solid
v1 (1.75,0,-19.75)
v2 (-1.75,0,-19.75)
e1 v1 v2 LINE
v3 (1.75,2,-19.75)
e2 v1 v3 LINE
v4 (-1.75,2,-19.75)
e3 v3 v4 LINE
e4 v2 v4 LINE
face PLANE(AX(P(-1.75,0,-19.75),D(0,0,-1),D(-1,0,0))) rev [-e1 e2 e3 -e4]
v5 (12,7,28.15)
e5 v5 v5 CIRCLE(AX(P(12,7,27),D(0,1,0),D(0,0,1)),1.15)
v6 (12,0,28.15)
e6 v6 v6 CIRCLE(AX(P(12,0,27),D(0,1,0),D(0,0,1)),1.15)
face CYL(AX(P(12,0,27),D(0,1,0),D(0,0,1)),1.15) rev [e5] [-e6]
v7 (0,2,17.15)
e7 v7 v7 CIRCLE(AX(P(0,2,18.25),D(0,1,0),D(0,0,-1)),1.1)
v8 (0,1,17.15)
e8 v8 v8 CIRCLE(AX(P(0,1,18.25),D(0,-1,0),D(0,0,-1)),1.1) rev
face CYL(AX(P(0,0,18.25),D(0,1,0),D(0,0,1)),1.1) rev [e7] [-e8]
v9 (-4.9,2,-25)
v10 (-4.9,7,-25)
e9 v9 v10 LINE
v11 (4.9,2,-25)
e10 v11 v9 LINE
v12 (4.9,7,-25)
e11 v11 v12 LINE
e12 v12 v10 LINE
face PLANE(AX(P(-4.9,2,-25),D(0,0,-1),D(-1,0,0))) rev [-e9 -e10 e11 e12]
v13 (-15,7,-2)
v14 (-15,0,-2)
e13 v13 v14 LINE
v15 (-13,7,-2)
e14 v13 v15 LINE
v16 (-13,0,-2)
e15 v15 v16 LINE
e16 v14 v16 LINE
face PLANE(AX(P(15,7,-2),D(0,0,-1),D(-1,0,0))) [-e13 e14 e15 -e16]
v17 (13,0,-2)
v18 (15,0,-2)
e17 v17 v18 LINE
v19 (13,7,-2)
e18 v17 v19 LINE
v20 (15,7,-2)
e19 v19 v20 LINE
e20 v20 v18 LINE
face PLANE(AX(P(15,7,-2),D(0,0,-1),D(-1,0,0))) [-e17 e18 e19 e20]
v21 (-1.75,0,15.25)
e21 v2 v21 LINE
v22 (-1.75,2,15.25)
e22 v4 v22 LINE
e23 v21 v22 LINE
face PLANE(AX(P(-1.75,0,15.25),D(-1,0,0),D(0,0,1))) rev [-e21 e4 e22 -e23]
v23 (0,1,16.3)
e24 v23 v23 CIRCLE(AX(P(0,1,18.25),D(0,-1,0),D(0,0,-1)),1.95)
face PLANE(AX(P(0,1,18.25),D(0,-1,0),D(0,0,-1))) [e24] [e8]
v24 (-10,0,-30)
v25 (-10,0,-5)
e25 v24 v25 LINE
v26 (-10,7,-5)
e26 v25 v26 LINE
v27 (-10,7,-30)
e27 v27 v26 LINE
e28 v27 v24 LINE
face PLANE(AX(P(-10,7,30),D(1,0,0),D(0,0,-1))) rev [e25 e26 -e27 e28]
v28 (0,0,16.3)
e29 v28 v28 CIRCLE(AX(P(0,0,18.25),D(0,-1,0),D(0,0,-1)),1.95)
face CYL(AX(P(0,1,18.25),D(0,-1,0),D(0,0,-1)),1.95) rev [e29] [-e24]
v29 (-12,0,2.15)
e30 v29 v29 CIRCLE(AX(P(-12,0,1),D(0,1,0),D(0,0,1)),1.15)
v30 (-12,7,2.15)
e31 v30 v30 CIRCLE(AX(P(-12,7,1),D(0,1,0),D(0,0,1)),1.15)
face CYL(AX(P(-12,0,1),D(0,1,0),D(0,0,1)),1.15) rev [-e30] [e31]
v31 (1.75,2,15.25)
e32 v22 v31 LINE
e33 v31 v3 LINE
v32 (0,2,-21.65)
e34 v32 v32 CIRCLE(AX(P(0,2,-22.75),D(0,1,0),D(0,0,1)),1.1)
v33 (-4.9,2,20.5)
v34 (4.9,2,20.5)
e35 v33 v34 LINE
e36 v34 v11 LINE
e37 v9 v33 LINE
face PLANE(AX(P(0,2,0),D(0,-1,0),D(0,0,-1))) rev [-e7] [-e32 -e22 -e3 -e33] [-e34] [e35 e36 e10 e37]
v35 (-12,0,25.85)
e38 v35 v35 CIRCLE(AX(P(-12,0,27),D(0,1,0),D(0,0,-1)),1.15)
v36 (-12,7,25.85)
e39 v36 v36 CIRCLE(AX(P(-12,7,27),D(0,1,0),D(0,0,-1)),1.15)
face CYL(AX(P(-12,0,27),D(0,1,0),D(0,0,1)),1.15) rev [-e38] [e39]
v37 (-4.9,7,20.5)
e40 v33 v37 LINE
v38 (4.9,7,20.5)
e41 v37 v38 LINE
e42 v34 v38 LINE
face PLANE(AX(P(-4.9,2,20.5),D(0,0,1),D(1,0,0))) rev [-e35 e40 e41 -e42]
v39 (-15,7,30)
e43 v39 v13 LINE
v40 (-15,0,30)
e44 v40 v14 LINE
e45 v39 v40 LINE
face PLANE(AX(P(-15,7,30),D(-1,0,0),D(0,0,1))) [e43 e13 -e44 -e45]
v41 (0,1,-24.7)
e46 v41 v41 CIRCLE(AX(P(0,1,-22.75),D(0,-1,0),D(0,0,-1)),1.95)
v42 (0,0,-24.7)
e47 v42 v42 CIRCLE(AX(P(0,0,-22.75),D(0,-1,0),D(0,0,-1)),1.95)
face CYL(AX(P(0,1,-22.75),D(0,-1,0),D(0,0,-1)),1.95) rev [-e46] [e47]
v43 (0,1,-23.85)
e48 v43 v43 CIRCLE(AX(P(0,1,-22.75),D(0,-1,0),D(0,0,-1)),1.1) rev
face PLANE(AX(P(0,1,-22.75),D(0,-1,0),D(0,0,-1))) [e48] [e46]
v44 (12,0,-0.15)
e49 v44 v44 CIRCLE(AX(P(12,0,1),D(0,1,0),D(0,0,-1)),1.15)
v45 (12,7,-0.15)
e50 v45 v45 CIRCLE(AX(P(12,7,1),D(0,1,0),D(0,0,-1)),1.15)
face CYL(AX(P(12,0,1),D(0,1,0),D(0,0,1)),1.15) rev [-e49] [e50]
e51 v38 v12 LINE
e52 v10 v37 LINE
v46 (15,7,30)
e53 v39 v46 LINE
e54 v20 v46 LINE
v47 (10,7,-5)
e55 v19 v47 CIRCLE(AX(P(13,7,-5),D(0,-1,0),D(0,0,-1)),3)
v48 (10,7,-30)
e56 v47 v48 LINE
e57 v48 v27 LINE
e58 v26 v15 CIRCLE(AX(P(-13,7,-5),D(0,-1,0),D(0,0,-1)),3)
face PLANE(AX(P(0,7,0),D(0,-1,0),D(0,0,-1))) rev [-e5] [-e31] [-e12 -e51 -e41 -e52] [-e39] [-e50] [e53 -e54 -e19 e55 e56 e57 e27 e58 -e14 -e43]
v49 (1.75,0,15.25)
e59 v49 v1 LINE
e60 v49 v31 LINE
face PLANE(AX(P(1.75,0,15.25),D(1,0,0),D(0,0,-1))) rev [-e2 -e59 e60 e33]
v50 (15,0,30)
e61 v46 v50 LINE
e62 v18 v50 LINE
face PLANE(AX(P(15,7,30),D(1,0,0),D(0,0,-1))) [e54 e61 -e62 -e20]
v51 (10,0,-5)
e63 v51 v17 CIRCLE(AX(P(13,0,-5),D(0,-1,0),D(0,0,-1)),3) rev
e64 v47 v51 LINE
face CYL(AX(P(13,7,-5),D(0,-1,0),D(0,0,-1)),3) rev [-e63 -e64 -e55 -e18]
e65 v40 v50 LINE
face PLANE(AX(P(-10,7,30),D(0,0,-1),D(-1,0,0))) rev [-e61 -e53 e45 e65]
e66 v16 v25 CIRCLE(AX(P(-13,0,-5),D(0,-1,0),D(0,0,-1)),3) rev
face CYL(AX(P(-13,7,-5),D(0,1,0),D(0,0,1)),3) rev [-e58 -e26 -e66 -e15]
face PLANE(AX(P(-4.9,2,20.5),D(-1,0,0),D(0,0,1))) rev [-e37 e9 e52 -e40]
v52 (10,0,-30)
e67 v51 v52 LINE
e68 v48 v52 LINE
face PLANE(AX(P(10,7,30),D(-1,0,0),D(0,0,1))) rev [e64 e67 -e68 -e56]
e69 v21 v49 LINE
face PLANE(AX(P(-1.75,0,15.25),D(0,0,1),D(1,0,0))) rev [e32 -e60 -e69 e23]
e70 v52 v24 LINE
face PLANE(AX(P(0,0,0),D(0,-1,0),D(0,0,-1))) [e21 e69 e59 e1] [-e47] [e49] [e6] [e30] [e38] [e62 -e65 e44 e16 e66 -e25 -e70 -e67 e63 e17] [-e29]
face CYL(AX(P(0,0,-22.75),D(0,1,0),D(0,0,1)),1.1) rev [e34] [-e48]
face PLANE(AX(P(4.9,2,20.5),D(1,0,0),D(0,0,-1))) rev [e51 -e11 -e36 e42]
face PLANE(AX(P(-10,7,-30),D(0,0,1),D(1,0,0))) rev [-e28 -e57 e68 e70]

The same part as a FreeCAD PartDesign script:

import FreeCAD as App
import Part
import Sketcher
from FreeCAD import Vector
Q = App.Units.Quantity


def edges_at(feature, points):
    """Names of the edges that pass closest to the given points."""
    edges = feature.Shape.Edges
    near = lambda p: min(range(len(edges)), key=lambda i: edges[i].distToShape(Part.Vertex(*p))[0])
    return sorted({f"Edge{near(p) + 1}" for p in points})


def add_polygon(sketch, points):
    """Adds a closed chain of lines whose ends are joined by coincident constraints."""
    first, n = sketch.GeometryCount, len(points)
    for a, b in zip(points, points[1:] + points[:1]):
        sketch.addGeometry(Part.LineSegment(App.Vector(*a, 0), App.Vector(*b, 0)), False)
    for i in range(n):
        sketch.addConstraint(Sketcher.Constraint("Coincident", first + i, 2, first + (i + 1) % n, 1))

doc = App.newDocument("Part")
body = doc.addObject("PartDesign::Body", "Body")

sketch1 = body.newObject("Sketcher::SketchObject", "Sketch")
sketch1.AttachmentSupport = (doc.getObject("XZ_Plane"), [""])
sketch1.MapMode = "FlatFace"
add_polygon(sketch1, [(-10, -30), (-10, 30), (10, 30), (10, -30)])
sketch1.addConstraint([
    Sketcher.Constraint("Vertical", 0),
    Sketcher.Constraint("Horizontal", 1),
    Sketcher.Constraint("Vertical", 2),
    Sketcher.Constraint("Horizontal", 3),
    Sketcher.Constraint("Symmetric", 0, 2, 2, 2, -1, 1),
    Sketcher.Constraint("DistanceX", 1, 1, 1, 2, Q("20 mm")),
    Sketcher.Constraint("DistanceY", 0, 1, 0, 2, Q("60 mm")),
])
pad1 = body.newObject("PartDesign::Pad", "Pad")
pad1.Profile = sketch1
pad1.Length = 7
pad1.Reversed = True

sketch2 = body.newObject("Sketcher::SketchObject", "Sketch001")
sketch2.AttachmentSupport = (doc.getObject("XZ_Plane"), [""])
sketch2.MapMode = "FlatFace"
add_polygon(sketch2, [(-15, 30), (-15, -2), (15, -2), (15, 30)])
sketch2.addConstraint([
    Sketcher.Constraint("Vertical", 0),
    Sketcher.Constraint("Horizontal", 1),
    Sketcher.Constraint("Vertical", 2),
    Sketcher.Constraint("Horizontal", 3),
    Sketcher.Constraint("DistanceX", 1, 1, 1, 2, Q("30 mm")),
    Sketcher.Constraint("DistanceY", 0, 2, 0, 1, Q("32 mm")),
    Sketcher.Constraint("DistanceX", 0, 2, -1, 1, Q("15 mm")),
    Sketcher.Constraint("DistanceY", 0, 2, -1, 1, Q("2 mm")),
])
pad2 = body.newObject("PartDesign::Pad", "Pad001")
pad2.Profile = sketch2
pad2.Length = 7
pad2.Reversed = True

sketch3 = body.newObject("Sketcher::SketchObject", "Sketch002")
sketch3.AttachmentSupport = (doc.getObject("XZ_Plane"), [""])
sketch3.MapMode = "FlatFace"
sketch3.AttachmentOffset = App.Placement(Vector(0, 0, -7), App.Rotation())
add_polygon(sketch3, [(-5, -25), (-5, 20), (5, 20), (5, -25)])
sketch3.addConstraint([
    Sketcher.Constraint("Vertical", 0),
    Sketcher.Constraint("Horizontal", 1),
    Sketcher.Constraint("Vertical", 2),
    Sketcher.Constraint("Horizontal", 3),
    Sketcher.Constraint("DistanceX", 1, 1, 1, 2, Q("9.8 mm")),
    Sketcher.Constraint("DistanceY", 0, 1, 0, 2, Q("45.5 mm")),
    Sketcher.Constraint("DistanceY", 2, 2, -1, 1, Q("25 mm")),
    Sketcher.Constraint("DistanceX", 0, 2, -1, 1, Q("4.9 mm")),
])
pocket1 = body.newObject("PartDesign::Pocket", "Pocket")
pocket1.Profile = sketch3
pocket1.Length = 5
pocket1.Reversed = True

sketch4 = body.newObject("Sketcher::SketchObject", "Sketch003")
sketch4.AttachmentSupport = (doc.getObject("XZ_Plane"), [""])
sketch4.MapMode = "FlatFace"
sketch4.AttachmentOffset = App.Placement(Vector(0, 0, -2), App.Rotation())
add_polygon(sketch4, [(-1.8, -19.8), (-1.8, 15.2), (1.8, 15.2), (1.8, -19.8)])
sketch4.addConstraint([
    Sketcher.Constraint("Vertical", 0),
    Sketcher.Constraint("Horizontal", 1),
    Sketcher.Constraint("Vertical", 2),
    Sketcher.Constraint("Horizontal", 3),
    Sketcher.Constraint("DistanceY", 0, 1, 0, 2, Q("35 mm")),
    Sketcher.Constraint("DistanceX", 1, 1, 1, 2, Q("3.5 mm")),
    Sketcher.Constraint("DistanceX", 0, 2, -1, 1, Q("1.75 mm")),
    Sketcher.Constraint("DistanceY", -1, 1, 0, 2, Q("15.25 mm")),
])
pocket2 = body.newObject("PartDesign::Pocket", "Pocket001")
pocket2.Profile = sketch4
pocket2.Type = "ThroughAll"
pocket2.Reversed = True

sketch5 = body.newObject("Sketcher::SketchObject", "Sketch004")
sketch5.AttachmentSupport = (doc.getObject("XZ_Plane"), [""])
sketch5.MapMode = "FlatFace"
sketch5.AttachmentOffset = App.Placement(Vector(0, 0, -2), App.Rotation())
sketch5.addGeometry([
    Part.Circle(Vector(0, -22.8, 0), Vector(0, 0, 1), 1.1),
    Part.Circle(Vector(0, 18.2, 0), Vector(0, 0, 1), 1.1),
], False)
sketch5.addConstraint([
    Sketcher.Constraint("Equal", 0, 1),
    Sketcher.Constraint("PointOnObject", 0, 3, -2),
    Sketcher.Constraint("PointOnObject", 1, 3, -2),
    Sketcher.Constraint("Diameter", 0, Q("2.2 mm")),
    Sketcher.Constraint("DistanceY", 0, 3, 1, 3, Q("41 mm")),
    Sketcher.Constraint("DistanceY", 0, 3, -1, 1, Q("22.75 mm")),
])
pocket3 = body.newObject("PartDesign::Pocket", "Pocket002")
pocket3.Profile = sketch5
pocket3.Type = "ThroughAll"
pocket3.Reversed = True

sketch6 = body.newObject("Sketcher::SketchObject", "Sketch005")
sketch6.AttachmentSupport = (doc.getObject("XZ_Plane"), [""])
sketch6.MapMode = "FlatFace"
sketch6.AttachmentOffset = App.Placement(Vector(0, 0, -7), App.Rotation())
sketch6.addGeometry([
    Part.Circle(Vector(-12, 1, 0), Vector(0, 0, 1), 1.1),
    Part.Circle(Vector(12, 1, 0), Vector(0, 0, 1), 1.1),
    Part.Circle(Vector(12, 27, 0), Vector(0, 0, 1), 1.1),
    Part.Circle(Vector(-12, 27, 0), Vector(0, 0, 1), 1.1),
], False)
sketch6.addConstraint([
    Sketcher.Constraint("Equal", 0, 1),
    Sketcher.Constraint("Equal", 1, 2),
    Sketcher.Constraint("Equal", 2, 3),
    Sketcher.Constraint("Symmetric", 0, 3, 1, 3, -2),
    Sketcher.Constraint("Symmetric", 2, 3, 3, 3, -2),
    Sketcher.Constraint("Vertical", 1, 3, 2, 3),
    Sketcher.Constraint("Diameter", 0, Q("2.3 mm")),
    Sketcher.Constraint("DistanceX", 0, 3, -1, 1, Q("12 mm")),
    Sketcher.Constraint("DistanceY", -1, 1, 0, 3, Q("1 mm")),
    Sketcher.Constraint("DistanceY", -1, 1, 2, 3, Q("27 mm")),
])
pocket4 = body.newObject("PartDesign::Pocket", "Pocket003")
pocket4.Profile = sketch6
pocket4.Type = "ThroughAll"
pocket4.Reversed = True
doc.recompute()

fillet = body.newObject("PartDesign::Fillet", "Fillet")
fillet.Base = (pocket4, edges_at(pocket4, [(10, 3.5, -2), (-10, 3.5, -2)]))
fillet.Radius = 3

sketch7 = body.newObject("Sketcher::SketchObject", "Sketch006")
sketch7.AttachmentSupport = (doc.getObject("XZ_Plane"), [""])
sketch7.MapMode = "FlatFace"
sketch7.addGeometry([
    Part.Circle(Vector(0, 18.2, 0), Vector(0, 0, 1), 1.9),
    Part.Circle(Vector(0, -22.8, 0), Vector(0, 0, 1), 1.9),
], False)
sketch7.addConstraint([
    Sketcher.Constraint("Equal", 0, 1),
    Sketcher.Constraint("PointOnObject", 0, 3, -2),
    Sketcher.Constraint("PointOnObject", 1, 3, -2),
    Sketcher.Constraint("Diameter", 0, Q("3.9 mm")),
    Sketcher.Constraint("DistanceY", 1, 3, 0, 3, Q("41 mm")),
    Sketcher.Constraint("DistanceY", -1, 1, 0, 3, Q("18.25 mm")),
])
pocket5 = body.newObject("PartDesign::Pocket", "Pocket004")
pocket5.Profile = sketch7
pocket5.Length = 1

doc.recompute()
